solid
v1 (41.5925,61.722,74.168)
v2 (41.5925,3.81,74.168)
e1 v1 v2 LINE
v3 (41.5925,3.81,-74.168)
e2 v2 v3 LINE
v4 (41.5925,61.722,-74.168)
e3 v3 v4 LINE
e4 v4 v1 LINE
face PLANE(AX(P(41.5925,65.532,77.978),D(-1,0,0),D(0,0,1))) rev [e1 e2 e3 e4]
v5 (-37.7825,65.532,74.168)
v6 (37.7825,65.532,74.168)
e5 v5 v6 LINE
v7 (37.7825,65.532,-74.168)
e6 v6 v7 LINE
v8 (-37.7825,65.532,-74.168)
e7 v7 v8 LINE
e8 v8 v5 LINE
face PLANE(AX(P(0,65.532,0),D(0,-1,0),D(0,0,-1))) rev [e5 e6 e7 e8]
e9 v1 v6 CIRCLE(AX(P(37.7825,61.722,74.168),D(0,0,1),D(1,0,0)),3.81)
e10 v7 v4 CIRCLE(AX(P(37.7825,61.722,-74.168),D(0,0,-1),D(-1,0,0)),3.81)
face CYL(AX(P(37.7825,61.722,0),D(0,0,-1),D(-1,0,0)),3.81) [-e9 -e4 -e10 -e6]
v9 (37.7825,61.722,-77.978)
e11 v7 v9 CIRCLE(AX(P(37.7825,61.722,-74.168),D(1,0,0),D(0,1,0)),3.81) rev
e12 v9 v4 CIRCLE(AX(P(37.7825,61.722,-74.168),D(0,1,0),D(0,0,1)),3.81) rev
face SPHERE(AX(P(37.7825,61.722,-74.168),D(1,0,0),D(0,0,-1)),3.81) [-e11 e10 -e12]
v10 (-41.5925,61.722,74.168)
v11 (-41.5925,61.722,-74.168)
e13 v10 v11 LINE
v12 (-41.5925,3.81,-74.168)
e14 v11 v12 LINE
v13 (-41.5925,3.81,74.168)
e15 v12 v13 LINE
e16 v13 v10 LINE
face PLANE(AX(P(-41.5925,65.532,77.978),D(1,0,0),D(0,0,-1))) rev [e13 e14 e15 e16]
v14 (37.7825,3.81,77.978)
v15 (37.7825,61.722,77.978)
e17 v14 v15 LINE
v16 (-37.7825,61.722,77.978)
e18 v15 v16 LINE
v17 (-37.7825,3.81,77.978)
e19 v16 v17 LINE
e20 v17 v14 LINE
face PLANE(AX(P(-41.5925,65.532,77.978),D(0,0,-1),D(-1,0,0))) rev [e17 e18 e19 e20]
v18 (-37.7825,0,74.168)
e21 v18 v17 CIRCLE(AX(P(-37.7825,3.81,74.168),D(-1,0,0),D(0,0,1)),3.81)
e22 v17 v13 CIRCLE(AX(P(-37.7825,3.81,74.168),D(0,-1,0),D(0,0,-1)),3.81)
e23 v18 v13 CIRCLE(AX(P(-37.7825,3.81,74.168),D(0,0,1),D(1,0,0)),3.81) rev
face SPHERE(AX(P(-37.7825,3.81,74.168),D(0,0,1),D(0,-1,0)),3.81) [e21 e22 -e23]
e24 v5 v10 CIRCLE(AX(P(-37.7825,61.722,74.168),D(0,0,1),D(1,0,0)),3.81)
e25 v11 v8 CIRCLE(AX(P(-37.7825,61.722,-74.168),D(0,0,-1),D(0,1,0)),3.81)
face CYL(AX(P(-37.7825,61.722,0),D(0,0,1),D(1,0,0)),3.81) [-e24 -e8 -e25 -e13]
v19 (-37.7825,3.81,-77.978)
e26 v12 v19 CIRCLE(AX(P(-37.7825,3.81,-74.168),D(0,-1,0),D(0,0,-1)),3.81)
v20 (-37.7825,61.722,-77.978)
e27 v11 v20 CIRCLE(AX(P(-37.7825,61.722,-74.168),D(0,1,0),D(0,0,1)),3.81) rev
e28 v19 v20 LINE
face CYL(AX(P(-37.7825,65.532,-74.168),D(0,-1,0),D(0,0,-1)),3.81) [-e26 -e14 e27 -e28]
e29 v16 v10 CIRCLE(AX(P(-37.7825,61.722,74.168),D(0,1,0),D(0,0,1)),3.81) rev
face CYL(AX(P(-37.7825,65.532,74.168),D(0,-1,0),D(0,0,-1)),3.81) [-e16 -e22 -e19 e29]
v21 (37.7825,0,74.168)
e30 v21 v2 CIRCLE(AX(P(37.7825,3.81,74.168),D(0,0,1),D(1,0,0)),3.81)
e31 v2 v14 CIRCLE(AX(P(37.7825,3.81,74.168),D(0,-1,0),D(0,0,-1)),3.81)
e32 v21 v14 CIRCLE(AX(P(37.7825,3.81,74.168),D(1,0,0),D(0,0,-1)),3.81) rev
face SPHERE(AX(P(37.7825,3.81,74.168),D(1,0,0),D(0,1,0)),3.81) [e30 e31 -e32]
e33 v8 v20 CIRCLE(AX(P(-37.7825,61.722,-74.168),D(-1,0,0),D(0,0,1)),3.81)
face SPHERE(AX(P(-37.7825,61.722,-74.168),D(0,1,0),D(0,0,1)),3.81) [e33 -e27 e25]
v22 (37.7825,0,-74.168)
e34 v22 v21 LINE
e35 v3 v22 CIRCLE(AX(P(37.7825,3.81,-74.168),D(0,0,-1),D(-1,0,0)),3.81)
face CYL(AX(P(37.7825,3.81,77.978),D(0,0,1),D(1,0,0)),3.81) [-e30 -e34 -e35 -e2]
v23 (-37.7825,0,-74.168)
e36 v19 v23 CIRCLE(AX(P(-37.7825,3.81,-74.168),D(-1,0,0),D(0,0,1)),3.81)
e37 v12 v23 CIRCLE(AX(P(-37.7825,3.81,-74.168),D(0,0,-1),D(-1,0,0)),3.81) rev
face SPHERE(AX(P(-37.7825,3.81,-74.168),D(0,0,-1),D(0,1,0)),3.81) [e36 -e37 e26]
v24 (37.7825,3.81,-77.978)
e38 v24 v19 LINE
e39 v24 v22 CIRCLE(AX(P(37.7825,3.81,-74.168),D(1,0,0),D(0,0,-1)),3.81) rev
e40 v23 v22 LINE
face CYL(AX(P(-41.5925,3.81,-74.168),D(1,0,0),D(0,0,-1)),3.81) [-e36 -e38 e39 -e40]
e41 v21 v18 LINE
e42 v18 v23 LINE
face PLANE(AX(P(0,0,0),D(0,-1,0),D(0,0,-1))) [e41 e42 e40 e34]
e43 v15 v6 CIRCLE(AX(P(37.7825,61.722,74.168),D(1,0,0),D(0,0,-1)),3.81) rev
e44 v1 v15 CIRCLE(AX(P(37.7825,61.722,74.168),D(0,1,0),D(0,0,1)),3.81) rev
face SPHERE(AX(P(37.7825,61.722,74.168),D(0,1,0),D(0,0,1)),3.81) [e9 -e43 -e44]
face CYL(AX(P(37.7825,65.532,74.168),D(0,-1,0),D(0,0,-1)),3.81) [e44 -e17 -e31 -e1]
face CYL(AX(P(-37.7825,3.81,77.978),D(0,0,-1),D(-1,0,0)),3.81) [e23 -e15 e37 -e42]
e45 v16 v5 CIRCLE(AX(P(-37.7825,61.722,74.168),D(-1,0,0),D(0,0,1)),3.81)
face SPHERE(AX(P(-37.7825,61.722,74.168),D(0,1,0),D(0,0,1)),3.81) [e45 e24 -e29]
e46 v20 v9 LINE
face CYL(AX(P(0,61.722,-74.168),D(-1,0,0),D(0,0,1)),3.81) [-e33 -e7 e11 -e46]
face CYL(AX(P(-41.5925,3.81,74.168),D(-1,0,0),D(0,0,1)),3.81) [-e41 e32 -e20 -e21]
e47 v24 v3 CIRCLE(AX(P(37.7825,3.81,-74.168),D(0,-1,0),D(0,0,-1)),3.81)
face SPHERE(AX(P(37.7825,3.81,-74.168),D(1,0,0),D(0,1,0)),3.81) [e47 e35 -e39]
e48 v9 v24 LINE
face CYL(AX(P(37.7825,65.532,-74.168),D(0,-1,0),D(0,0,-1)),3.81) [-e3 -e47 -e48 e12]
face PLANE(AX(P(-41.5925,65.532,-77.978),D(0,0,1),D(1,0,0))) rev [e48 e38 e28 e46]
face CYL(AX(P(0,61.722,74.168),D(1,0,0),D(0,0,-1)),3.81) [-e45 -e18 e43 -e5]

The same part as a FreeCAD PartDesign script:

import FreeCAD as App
import Part
import Sketcher
from FreeCAD import Vector
Q = App.Units.Quantity


def add_polygon(sketch, points):
    """Adds a closed chain of lines whose ends are joined by coincident constraints."""
    first, n = sketch.GeometryCount, len(points)
    for a, b in zip(points, points[1:] + points[:1]):
        sketch.addGeometry(Part.LineSegment(App.Vector(*a, 0), App.Vector(*b, 0)), False)
    for i in range(n):
        sketch.addConstraint(Sketcher.Constraint("Coincident", first + i, 2, first + (i + 1) % n, 1))

doc = App.newDocument("Part")
body = doc.addObject("PartDesign::Body", "Body")

sketch1 = body.newObject("Sketcher::SketchObject", "Sketch")
sketch1.AttachmentSupport = (doc.getObject("XZ_Plane"), [""])
sketch1.MapMode = "FlatFace"
add_polygon(sketch1, [(-42, -78), (-42, 78), (42, 78), (42, -78)])
sketch1.addConstraint([
    Sketcher.Constraint("Vertical", 0),
    Sketcher.Constraint("Horizontal", 1),
    Sketcher.Constraint("Vertical", 2),
    Sketcher.Constraint("Horizontal", 3),
    Sketcher.Constraint("Symmetric", 0, 2, 2, 2, -1, 1),
    Sketcher.Constraint("DistanceY", 0, 1, 0, 2, Q("6.14 in")),
    Sketcher.Constraint("DistanceX", 1, 1, 1, 2, Q("3.275 in")),
])
pad1 = body.newObject("PartDesign::Pad", "Pad")
pad1.Profile = sketch1
pad1.Length = Q("2.58 in")
pad1.Reversed = True
doc.recompute()

fillet = body.newObject("PartDesign::Fillet", "Fillet")
fillet.Base = (pad1, ["Edge1"])
fillet.UseAllEdges = True
fillet.Radius = Q("0.15 in")

doc.recompute()
